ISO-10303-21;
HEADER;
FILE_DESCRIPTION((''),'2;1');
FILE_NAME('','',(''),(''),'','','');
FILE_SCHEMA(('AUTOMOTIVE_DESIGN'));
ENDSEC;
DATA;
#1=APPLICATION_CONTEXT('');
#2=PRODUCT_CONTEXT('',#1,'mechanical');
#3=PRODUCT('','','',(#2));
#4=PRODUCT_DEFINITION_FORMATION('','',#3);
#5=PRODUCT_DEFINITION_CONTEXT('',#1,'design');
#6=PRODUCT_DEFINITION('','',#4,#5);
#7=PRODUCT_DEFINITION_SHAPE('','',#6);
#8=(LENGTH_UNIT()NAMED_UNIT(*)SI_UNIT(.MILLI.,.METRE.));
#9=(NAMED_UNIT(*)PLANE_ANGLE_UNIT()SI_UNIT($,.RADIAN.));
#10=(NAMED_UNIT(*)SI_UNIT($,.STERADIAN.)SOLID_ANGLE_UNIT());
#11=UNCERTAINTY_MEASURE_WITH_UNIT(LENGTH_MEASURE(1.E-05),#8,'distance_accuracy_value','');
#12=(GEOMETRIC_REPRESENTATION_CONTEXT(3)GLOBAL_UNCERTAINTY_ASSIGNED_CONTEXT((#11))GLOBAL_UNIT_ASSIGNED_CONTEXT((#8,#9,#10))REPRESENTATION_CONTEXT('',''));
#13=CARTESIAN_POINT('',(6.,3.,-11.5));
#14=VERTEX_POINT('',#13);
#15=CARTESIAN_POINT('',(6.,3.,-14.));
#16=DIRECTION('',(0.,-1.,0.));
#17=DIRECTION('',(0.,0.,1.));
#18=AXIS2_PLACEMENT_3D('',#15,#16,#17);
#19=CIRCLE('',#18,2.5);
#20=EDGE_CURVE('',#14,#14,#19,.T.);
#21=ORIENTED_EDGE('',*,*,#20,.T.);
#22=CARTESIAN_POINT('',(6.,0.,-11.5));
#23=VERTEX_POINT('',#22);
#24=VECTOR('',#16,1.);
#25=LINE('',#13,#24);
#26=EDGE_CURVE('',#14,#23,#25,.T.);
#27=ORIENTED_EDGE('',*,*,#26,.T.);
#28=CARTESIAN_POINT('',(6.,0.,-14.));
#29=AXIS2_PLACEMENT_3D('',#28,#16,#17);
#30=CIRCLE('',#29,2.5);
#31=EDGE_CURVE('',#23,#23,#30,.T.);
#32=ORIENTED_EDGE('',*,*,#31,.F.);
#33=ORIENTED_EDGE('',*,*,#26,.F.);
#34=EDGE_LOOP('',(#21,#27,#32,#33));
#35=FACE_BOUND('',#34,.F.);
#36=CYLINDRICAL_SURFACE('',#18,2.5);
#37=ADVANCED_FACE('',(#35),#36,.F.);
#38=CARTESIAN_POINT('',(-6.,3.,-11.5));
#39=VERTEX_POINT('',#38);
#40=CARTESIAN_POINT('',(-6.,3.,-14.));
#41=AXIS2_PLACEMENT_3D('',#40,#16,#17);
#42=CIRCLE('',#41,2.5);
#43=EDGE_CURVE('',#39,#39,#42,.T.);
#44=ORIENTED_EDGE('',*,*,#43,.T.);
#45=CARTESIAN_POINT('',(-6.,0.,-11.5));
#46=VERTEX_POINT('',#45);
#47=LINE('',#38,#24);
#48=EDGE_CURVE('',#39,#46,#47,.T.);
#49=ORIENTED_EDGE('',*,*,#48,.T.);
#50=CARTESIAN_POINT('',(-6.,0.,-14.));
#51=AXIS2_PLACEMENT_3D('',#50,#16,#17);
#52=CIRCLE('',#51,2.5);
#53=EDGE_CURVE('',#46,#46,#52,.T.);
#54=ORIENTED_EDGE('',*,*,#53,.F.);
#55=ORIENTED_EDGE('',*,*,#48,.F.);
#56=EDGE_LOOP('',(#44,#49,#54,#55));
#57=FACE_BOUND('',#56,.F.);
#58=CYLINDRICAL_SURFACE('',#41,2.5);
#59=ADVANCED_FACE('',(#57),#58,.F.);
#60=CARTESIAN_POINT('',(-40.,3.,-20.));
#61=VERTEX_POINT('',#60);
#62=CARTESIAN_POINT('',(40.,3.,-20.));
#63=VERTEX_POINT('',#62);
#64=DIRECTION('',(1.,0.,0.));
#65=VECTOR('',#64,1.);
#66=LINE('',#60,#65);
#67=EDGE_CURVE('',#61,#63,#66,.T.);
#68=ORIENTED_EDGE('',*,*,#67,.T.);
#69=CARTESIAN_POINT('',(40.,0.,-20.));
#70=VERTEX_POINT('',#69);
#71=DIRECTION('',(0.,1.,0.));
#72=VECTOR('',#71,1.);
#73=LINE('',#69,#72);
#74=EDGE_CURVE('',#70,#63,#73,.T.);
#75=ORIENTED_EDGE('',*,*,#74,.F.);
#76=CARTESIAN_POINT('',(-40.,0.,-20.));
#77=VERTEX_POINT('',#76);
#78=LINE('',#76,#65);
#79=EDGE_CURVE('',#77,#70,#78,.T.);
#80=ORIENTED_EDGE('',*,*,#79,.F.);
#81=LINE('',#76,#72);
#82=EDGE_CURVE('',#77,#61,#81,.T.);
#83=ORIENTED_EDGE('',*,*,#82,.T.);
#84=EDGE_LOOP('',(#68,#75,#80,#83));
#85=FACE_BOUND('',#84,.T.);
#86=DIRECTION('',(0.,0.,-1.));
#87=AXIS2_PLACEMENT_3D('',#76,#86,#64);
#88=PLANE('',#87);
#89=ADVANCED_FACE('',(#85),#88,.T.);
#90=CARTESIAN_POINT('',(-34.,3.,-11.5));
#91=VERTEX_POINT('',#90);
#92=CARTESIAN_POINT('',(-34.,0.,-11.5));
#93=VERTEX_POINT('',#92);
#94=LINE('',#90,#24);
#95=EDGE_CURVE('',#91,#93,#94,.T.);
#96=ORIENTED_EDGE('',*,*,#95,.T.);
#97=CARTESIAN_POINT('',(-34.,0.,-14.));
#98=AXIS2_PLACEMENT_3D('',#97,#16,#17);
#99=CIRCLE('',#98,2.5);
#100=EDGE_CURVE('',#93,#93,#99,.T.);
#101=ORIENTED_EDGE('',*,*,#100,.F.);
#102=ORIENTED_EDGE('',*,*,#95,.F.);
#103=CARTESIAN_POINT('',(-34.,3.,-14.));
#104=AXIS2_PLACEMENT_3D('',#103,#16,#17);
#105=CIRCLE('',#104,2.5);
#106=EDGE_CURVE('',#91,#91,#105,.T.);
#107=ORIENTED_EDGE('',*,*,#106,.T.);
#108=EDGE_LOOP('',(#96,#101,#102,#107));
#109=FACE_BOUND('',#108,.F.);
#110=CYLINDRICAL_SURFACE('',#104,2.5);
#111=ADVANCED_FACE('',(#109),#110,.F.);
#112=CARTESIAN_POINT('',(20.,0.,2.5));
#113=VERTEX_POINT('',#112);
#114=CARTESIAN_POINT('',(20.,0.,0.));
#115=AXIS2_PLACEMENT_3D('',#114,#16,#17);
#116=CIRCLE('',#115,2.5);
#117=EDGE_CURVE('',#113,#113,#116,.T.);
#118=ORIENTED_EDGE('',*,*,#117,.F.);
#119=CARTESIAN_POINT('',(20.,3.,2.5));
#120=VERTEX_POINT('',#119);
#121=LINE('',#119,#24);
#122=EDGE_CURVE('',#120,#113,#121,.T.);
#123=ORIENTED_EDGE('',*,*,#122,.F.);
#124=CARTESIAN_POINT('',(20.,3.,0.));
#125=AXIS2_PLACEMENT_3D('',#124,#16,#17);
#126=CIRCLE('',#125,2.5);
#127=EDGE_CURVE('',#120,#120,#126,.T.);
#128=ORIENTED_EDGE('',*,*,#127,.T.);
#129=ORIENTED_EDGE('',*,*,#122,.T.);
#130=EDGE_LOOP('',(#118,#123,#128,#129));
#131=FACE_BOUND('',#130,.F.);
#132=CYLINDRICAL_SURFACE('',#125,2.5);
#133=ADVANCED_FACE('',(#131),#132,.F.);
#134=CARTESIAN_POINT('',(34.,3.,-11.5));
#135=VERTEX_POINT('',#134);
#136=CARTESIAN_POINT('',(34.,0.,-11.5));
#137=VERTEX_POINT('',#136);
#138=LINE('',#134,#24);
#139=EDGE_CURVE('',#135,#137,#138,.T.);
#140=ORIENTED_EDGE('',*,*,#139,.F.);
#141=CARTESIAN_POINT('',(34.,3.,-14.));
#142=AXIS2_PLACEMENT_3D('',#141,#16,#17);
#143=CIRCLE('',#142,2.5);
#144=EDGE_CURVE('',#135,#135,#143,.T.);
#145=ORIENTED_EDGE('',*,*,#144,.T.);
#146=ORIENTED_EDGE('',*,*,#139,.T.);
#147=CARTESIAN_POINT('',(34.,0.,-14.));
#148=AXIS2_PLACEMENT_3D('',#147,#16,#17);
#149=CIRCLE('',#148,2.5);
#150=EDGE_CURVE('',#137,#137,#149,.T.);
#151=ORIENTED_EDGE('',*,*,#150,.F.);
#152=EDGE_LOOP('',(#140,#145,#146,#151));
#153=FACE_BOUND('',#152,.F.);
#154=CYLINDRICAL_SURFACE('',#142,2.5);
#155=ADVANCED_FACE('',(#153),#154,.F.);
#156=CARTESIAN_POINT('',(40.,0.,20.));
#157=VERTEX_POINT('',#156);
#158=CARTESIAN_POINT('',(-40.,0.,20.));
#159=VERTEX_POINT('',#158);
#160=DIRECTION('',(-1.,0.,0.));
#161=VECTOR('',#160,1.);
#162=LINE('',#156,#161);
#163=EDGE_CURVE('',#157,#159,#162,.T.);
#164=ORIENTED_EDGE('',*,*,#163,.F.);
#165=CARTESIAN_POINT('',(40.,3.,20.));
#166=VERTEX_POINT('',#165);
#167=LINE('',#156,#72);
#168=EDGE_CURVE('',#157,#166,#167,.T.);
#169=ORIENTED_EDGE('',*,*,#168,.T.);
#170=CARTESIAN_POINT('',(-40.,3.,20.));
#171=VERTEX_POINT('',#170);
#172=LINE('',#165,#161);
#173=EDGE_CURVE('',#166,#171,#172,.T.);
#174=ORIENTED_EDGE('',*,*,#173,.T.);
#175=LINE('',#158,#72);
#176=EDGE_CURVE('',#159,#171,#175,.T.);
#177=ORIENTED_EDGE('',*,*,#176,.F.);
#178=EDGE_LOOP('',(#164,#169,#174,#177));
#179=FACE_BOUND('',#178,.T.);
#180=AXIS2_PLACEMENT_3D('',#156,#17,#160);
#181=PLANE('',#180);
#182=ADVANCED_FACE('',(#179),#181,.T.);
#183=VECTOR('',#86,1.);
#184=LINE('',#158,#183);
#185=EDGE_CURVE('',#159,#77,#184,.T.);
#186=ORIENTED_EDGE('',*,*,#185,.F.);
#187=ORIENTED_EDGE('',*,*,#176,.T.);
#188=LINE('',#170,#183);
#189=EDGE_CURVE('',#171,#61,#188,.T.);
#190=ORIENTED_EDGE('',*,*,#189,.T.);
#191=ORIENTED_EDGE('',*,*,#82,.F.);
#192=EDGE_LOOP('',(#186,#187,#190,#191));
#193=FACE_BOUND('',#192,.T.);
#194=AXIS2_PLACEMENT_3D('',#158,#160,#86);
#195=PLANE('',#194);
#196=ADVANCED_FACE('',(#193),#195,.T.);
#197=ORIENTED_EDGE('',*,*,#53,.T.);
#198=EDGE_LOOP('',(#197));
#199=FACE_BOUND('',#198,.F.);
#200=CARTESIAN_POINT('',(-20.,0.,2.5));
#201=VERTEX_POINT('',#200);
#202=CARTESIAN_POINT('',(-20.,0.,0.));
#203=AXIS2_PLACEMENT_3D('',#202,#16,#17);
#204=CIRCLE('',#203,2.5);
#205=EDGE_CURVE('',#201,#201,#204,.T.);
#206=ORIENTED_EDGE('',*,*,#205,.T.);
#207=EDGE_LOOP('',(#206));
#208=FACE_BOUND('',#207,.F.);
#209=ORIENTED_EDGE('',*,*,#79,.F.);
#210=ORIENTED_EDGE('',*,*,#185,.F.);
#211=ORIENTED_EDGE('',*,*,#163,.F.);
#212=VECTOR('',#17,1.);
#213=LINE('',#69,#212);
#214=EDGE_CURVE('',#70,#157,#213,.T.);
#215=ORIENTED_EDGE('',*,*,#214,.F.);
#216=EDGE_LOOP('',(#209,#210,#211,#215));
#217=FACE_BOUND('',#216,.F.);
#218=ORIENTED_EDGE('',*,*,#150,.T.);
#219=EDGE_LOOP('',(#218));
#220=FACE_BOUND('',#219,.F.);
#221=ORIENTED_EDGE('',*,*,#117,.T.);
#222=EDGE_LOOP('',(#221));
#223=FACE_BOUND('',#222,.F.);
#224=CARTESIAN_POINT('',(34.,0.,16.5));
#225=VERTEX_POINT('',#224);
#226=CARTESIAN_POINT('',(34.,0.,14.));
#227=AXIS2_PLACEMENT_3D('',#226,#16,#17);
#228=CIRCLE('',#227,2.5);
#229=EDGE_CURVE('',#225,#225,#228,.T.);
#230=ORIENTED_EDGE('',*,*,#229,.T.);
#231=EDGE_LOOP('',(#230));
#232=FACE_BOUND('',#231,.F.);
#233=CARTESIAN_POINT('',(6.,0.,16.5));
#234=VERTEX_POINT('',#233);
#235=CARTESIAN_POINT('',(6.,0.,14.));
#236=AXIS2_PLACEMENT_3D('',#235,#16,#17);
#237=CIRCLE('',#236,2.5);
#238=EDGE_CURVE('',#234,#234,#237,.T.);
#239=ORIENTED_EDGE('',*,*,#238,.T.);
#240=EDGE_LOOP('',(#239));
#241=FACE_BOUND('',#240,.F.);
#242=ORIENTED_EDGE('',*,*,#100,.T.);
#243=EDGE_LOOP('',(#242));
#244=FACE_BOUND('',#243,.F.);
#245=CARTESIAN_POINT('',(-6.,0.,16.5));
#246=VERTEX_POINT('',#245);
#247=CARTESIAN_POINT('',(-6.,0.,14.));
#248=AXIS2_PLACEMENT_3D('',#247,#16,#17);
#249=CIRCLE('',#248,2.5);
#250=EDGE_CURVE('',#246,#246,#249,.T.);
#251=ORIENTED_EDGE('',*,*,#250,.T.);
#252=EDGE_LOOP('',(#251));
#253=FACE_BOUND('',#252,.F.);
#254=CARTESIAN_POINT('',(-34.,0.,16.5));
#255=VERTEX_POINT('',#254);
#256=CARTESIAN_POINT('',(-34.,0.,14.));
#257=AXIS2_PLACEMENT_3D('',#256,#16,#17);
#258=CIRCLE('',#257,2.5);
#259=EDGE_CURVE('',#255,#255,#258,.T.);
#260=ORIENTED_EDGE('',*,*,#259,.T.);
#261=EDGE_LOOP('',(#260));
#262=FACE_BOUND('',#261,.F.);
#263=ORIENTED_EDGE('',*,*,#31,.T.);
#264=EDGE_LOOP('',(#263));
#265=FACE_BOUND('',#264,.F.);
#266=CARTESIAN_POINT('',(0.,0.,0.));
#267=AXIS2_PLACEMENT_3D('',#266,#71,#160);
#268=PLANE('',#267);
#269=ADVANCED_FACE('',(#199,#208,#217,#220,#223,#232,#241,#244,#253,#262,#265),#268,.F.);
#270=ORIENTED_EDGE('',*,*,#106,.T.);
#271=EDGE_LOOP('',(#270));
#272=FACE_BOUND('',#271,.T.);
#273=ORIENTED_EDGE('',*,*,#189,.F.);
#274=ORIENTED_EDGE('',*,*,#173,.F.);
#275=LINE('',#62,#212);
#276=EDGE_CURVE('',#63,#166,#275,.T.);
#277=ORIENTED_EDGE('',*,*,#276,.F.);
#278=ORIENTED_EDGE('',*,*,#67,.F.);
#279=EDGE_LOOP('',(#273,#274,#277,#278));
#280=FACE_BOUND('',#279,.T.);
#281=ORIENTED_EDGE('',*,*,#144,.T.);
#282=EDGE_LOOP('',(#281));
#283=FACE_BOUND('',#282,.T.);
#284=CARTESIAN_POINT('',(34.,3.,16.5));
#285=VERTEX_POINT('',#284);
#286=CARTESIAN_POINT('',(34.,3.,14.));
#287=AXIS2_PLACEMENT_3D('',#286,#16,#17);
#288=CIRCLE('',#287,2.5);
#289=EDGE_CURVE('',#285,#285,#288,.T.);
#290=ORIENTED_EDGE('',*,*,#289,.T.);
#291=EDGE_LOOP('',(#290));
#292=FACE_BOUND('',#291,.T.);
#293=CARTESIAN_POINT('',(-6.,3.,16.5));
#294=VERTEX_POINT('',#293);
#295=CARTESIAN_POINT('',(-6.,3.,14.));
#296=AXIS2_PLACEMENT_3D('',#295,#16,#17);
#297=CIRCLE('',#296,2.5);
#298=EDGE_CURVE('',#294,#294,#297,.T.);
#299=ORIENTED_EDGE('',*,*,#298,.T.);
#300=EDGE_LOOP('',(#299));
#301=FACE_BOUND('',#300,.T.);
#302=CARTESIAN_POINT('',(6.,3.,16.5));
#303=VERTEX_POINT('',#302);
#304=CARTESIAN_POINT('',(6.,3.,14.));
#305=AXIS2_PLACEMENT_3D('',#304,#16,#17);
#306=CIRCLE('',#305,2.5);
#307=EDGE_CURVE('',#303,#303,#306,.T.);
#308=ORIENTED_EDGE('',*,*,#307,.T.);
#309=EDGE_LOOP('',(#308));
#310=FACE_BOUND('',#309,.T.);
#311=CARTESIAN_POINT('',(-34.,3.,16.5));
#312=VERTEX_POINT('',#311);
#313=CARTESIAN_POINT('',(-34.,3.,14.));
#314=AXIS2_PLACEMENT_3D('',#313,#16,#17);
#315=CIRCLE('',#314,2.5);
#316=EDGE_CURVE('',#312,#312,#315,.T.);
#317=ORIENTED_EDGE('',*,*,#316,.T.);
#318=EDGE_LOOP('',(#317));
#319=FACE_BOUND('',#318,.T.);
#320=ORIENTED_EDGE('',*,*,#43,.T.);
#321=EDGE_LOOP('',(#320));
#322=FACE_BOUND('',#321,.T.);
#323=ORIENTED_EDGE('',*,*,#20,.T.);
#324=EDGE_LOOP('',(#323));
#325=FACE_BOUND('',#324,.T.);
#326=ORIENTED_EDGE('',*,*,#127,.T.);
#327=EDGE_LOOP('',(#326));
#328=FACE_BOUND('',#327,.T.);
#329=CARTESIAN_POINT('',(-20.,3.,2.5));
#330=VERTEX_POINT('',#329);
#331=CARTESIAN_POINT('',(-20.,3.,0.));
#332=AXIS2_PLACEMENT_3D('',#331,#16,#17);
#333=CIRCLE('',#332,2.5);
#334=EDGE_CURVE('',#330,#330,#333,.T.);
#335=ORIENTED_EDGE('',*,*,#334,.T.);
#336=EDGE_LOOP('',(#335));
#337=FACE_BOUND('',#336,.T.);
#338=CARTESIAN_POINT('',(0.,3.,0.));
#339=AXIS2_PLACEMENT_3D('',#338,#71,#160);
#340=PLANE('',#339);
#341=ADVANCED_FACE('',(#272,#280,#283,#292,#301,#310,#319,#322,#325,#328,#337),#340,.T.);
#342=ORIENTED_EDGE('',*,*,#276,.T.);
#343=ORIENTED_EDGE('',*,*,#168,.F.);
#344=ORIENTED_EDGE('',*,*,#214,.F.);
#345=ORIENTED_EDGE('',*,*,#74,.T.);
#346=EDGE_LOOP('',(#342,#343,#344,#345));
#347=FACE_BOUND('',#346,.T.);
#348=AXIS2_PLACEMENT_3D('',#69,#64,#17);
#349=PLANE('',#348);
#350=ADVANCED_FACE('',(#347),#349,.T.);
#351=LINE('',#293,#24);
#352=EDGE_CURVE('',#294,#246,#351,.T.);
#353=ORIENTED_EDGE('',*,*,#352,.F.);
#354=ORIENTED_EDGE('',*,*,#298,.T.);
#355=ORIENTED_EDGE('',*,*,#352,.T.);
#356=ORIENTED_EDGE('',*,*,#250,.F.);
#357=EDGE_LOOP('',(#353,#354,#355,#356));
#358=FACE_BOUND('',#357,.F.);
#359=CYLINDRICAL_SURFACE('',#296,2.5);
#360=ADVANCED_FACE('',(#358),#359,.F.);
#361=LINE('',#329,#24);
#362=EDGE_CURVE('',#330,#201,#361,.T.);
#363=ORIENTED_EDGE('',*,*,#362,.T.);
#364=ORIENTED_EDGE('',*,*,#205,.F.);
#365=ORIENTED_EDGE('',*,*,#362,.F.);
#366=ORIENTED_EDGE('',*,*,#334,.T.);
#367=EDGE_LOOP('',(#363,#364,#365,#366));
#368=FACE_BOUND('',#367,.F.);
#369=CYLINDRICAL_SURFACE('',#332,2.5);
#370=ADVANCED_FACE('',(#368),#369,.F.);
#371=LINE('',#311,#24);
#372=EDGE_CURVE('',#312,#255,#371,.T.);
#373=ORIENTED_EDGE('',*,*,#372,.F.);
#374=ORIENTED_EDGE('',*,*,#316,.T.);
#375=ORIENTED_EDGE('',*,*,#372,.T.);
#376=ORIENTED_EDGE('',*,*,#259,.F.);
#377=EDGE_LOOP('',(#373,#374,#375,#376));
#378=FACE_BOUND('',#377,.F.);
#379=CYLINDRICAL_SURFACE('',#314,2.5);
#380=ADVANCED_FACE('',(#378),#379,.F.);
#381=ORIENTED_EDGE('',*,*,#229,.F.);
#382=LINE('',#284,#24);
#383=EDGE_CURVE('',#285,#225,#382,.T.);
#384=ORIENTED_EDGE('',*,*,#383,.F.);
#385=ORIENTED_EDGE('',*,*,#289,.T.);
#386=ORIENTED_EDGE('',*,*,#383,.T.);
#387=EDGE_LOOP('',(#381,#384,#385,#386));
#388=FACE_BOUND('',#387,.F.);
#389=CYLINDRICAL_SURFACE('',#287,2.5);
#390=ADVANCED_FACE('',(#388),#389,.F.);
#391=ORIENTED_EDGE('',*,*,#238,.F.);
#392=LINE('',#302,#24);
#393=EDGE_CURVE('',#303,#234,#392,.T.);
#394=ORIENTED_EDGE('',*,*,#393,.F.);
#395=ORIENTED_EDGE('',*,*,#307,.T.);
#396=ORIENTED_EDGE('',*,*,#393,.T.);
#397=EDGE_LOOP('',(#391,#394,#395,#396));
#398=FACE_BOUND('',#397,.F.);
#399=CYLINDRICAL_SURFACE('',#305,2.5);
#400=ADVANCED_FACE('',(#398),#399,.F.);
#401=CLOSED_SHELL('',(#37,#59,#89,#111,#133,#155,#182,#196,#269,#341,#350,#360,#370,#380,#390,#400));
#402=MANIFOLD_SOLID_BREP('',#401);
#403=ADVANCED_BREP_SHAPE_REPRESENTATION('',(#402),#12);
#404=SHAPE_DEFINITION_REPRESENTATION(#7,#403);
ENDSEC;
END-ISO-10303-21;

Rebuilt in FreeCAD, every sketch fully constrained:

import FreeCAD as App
import Part
import Sketcher

V = App.Vector
Q = App.Units.Quantity

doc = App.newDocument("Part")
body = doc.addObject("PartDesign::Body", "Body")

sketch1 = body.newObject("Sketcher::SketchObject", "Sketch")
sketch1.AttachmentSupport = (doc.getObject("XZ_Plane"), [""])
sketch1.MapMode = "FlatFace"
sketch1.addGeometry(Part.LineSegment(V(40, -20, 0), V(-40, -20, 0)), False)
sketch1.addGeometry(Part.LineSegment(V(-40, -20, 0), V(-40, 20, 0)), False)
sketch1.addGeometry(Part.LineSegment(V(-40, 20, 0), V(40, 20, 0)), False)
sketch1.addGeometry(Part.LineSegment(V(40, 20, 0), V(40, -20, 0)), False)
sketch1.addConstraint(Sketcher.Constraint("Coincident", 0, 2, 1, 1))
sketch1.addConstraint(Sketcher.Constraint("Coincident", 1, 2, 2, 1))
sketch1.addConstraint(Sketcher.Constraint("Coincident", 2, 2, 3, 1))
sketch1.addConstraint(Sketcher.Constraint("Coincident", 3, 2, 0, 1))
sketch1.addConstraint(Sketcher.Constraint("Horizontal", 0))
sketch1.addConstraint(Sketcher.Constraint("Vertical", 1))
sketch1.addConstraint(Sketcher.Constraint("Horizontal", 2))
sketch1.addConstraint(Sketcher.Constraint("Vertical", 3))
sketch1.addConstraint(Sketcher.Constraint("Symmetric", 0, 2, 2, 2, -1, 1))
sketch1.addConstraint(Sketcher.Constraint("DistanceX", 0, 2, 0, 1, Q("80 mm")))
sketch1.addConstraint(Sketcher.Constraint("DistanceY", 1, 1, 1, 2, Q("40 mm")))
pad1 = body.newObject("PartDesign::Pad", "Pad")
pad1.Profile = sketch1
pad1.Length = 3
pad1.Reversed = True

sketch2 = body.newObject("Sketcher::SketchObject", "Sketch001")
sketch2.AttachmentSupport = (doc.getObject("XZ_Plane"), [""])
sketch2.MapMode = "FlatFace"
sketch2.AttachmentOffset = App.Placement(V(0, 0, -3), App.Rotation())
sketch2.addGeometry(Part.Circle(V(34, -14, 0), V(0, 0, 1), 2.5), False)
sketch2.addGeometry(Part.Circle(V(34, 14, 0), V(0, 0, 1), 2.5), False)
sketch2.addGeometry(Part.Circle(V(-34, 14, 0), V(0, 0, 1), 2.5), False)
sketch2.addGeometry(Part.Circle(V(-34, -14, 0), V(0, 0, 1), 2.5), False)
sketch2.addGeometry(Part.Circle(V(6, 14, 0), V(0, 0, 1), 2.5), False)
sketch2.addGeometry(Part.Circle(V(-6, 14, 0), V(0, 0, 1), 2.5), False)
sketch2.addGeometry(Part.Circle(V(6, -14, 0), V(0, 0, 1), 2.5), False)
sketch2.addGeometry(Part.Circle(V(-6, -14, 0), V(0, 0, 1), 2.5), False)
sketch2.addGeometry(Part.Circle(V(20, 0, 0), V(0, 0, 1), 2.5), False)
sketch2.addGeometry(Part.Circle(V(-20, 0, 0), V(0, 0, 1), 2.5), False)
sketch2.addConstraint(Sketcher.Constraint("Equal", 0, 1))
sketch2.addConstraint(Sketcher.Constraint("Equal", 1, 2))
sketch2.addConstraint(Sketcher.Constraint("Equal", 2, 3))
sketch2.addConstraint(Sketcher.Constraint("Equal", 3, 4))
sketch2.addConstraint(Sketcher.Constraint("Equal", 4, 5))
sketch2.addConstraint(Sketcher.Constraint("Equal", 5, 6))
sketch2.addConstraint(Sketcher.Constraint("Equal", 6, 7))
sketch2.addConstraint(Sketcher.Constraint("Equal", 7, 8))
sketch2.addConstraint(Sketcher.Constraint("Equal", 8, 9))
sketch2.addConstraint(Sketcher.Constraint("Symmetric", 0, 3, 2, 3, -1, 1))
sketch2.addConstraint(Sketcher.Constraint("Symmetric", 1, 3, 3, 3, -1, 1))
sketch2.addConstraint(Sketcher.Constraint("Symmetric", 5, 3, 6, 3, -1, 1))
sketch2.addConstraint(Sketcher.Constraint("Symmetric", 4, 3, 7, 3, -1, 1))
sketch2.addConstraint(Sketcher.Constraint("Symmetric", 8, 3, 9, 3, -1, 1))
sketch2.addConstraint(Sketcher.Constraint("Symmetric", 1, 3, 2, 3, -2))
sketch2.addConstraint(Sketcher.Constraint("Symmetric", 4, 3, 5, 3, -2))
sketch2.addConstraint(Sketcher.Constraint("PointOnObject", 8, 3, -1))
sketch2.addConstraint(Sketcher.Constraint("Horizontal", 2, 3, 4, 3))
sketch2.addConstraint(Sketcher.Constraint("Diameter", 0, Q("5 mm")))
sketch2.addConstraint(Sketcher.Constraint("DistanceX", -1, 1, 0, 3, Q("34 mm")))
sketch2.addConstraint(Sketcher.Constraint("DistanceY", 0, 3, -1, 1, Q("14 mm")))
sketch2.addConstraint(Sketcher.Constraint("DistanceX", -1, 1, 4, 3, Q("6 mm")))
sketch2.addConstraint(Sketcher.Constraint("DistanceX", -1, 1, 8, 3, Q("20 mm")))
doc.recompute()
hole = body.newObject("PartDesign::Hole", "Hole")
hole.Profile = sketch2
hole.ThreadType = "None"
hole.Diameter = 5
hole.DepthType = "ThroughAll"
hole.Reversed = True

doc.recompute()
